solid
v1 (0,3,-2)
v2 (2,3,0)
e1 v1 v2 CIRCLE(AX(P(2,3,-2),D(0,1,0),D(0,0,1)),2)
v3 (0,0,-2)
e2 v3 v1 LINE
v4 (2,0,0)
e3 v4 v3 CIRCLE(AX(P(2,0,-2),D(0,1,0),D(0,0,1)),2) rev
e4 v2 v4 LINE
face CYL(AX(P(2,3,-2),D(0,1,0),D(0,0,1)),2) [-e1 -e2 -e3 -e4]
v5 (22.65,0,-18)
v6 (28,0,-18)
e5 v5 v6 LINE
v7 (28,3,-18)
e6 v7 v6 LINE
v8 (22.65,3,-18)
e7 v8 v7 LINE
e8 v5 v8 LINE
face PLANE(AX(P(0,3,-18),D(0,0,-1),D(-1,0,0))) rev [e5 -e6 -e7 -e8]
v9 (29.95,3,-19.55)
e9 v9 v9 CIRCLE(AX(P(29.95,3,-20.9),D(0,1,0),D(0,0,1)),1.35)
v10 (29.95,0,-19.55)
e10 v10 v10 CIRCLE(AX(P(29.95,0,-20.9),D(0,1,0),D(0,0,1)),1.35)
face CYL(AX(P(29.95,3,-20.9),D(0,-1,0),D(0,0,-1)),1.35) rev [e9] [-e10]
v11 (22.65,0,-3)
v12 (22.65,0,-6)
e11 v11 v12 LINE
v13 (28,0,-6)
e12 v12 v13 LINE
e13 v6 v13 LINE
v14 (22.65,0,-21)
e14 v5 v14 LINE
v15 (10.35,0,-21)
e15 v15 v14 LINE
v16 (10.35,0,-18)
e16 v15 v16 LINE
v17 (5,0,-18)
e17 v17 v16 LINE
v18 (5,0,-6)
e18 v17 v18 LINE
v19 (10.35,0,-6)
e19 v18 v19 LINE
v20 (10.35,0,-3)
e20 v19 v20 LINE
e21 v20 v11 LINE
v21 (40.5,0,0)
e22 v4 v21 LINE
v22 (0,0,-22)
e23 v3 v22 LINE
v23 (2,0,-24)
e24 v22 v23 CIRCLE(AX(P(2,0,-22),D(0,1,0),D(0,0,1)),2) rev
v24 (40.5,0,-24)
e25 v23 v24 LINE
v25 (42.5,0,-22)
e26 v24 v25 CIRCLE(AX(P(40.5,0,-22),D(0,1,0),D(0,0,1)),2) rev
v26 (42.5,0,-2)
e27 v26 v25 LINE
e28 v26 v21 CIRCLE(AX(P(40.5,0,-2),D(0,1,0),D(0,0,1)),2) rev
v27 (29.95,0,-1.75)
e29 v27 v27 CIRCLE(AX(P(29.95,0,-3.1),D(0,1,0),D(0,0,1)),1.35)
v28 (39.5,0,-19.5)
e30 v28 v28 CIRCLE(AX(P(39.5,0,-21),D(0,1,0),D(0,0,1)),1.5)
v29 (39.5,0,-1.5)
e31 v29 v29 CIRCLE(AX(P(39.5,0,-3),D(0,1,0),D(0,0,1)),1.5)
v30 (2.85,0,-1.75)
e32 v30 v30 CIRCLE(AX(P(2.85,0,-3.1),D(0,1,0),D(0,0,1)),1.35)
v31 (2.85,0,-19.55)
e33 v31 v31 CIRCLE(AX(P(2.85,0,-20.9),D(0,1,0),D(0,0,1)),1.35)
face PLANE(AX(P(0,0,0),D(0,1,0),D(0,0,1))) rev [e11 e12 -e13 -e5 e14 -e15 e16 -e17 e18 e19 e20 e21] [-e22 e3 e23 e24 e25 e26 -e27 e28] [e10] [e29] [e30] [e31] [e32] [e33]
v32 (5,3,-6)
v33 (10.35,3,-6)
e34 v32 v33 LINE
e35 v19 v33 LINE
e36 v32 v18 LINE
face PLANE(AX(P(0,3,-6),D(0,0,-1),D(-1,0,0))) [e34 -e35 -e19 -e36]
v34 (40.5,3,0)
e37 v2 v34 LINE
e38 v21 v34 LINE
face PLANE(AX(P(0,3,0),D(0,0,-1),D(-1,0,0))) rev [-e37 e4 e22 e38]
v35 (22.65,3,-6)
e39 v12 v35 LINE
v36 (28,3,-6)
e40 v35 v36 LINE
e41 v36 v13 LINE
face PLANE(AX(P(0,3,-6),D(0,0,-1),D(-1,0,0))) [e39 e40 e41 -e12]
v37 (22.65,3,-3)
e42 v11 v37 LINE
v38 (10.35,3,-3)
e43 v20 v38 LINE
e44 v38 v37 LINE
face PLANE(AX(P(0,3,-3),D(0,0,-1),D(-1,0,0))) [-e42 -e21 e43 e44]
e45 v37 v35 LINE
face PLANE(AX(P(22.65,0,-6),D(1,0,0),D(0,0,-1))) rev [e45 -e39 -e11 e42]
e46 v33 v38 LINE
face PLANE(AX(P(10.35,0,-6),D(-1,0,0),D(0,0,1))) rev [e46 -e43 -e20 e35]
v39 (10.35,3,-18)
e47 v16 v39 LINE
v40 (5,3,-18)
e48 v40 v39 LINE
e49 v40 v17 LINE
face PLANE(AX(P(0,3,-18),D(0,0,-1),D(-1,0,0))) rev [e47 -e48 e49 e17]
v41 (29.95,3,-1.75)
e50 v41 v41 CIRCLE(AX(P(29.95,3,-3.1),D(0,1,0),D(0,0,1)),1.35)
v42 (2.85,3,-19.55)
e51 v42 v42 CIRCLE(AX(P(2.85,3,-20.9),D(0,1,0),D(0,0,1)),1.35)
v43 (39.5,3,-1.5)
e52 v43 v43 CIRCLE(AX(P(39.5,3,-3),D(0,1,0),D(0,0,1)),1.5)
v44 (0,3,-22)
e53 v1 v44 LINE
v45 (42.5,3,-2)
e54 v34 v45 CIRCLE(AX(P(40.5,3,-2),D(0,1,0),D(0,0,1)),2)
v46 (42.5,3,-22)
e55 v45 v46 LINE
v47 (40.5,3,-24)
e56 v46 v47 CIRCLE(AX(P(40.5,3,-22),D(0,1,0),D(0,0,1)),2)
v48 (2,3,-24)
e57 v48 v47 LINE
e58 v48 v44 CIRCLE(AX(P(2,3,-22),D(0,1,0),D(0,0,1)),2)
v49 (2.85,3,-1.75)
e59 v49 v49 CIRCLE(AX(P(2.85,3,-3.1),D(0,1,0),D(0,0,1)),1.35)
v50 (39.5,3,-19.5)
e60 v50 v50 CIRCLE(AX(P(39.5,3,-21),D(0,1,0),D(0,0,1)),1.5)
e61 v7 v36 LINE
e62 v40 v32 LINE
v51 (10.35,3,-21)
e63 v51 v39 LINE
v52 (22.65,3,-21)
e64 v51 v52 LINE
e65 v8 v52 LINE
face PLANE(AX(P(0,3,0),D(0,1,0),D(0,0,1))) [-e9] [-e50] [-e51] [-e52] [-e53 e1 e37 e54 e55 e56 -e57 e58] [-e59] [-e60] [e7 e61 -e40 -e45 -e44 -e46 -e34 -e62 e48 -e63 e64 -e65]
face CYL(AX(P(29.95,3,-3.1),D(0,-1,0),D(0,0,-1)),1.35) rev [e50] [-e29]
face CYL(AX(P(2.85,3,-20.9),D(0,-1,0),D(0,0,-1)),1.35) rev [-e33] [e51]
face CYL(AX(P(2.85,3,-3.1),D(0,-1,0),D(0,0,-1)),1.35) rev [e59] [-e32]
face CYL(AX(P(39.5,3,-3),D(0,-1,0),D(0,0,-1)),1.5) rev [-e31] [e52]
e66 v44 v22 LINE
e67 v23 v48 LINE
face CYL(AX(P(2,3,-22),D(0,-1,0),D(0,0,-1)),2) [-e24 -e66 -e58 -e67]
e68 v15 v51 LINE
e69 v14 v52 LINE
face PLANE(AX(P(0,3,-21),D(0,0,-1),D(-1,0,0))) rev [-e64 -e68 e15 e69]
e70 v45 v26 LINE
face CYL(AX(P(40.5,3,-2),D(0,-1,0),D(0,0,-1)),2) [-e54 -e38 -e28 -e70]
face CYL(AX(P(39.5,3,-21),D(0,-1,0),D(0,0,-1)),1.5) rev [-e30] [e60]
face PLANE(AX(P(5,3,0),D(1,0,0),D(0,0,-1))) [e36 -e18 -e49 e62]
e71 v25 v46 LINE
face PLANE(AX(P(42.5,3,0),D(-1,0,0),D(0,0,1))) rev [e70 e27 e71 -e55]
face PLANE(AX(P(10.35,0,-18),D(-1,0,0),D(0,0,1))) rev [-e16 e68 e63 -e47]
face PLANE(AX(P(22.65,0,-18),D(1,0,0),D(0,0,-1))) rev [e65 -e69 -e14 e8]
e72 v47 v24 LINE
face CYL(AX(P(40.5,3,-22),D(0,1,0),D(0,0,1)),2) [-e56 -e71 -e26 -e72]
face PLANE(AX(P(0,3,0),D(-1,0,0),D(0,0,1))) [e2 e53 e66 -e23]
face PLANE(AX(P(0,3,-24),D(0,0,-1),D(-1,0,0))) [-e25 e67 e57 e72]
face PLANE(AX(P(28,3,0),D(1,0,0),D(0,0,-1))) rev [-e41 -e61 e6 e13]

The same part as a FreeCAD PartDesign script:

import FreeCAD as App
import Part
import Sketcher
from FreeCAD import Vector


def edges_at(feature, points):
    """Names of the edges that pass closest to the given points."""
    edges = feature.Shape.Edges
    near = lambda p: min(range(len(edges)), key=lambda i: edges[i].distToShape(Part.Vertex(*p))[0])
    return sorted({f"Edge{near(p) + 1}" for p in points})

doc = App.newDocument("Part")
body = doc.addObject("PartDesign::Body", "Body")

# Sketch on XZ plane
sketch1 = body.newObject("Sketcher::SketchObject", "Sketch")
sketch1.AttachmentSupport = (doc.getObject("XZ_Plane"), [""])
sketch1.MapMode = "FlatFace"
sketch1.addGeometry([
    Part.LineSegment(Vector(0, -24, 0), Vector(0, 0, 0)),  # 0
    Part.LineSegment(Vector(0, 0, 0), Vector(42.5, 0, 0)),  # 1
    Part.LineSegment(Vector(42.5, 0, 0), Vector(42.5, -24, 0)),  # 2
    Part.LineSegment(Vector(42.5, -24, 0), Vector(0, -24, 0)),  # 3
    Part.Circle(Vector(2.85, -3.1, 0), Vector(0, 0, 1), 1.35),  # 4
    Part.Circle(Vector(29.95, -3.1, 0), Vector(0, 0, 1), 1.35),  # 5
    Part.Circle(Vector(39.5, -3, 0), Vector(0, 0, 1), 1.5),  # 6
    Part.LineSegment(Vector(10.5, -6, 0), Vector(5, -6, 0)),  # 7
    Part.LineSegment(Vector(5, -6, 0), Vector(5, -18, 0)),  # 8
    Part.LineSegment(Vector(5, -18, 0), Vector(10.5, -18, 0)),  # 9
    Part.LineSegment(Vector(10.5, -18, 0), Vector(10.5, -21, 0)),  # 10
    Part.LineSegment(Vector(10.5, -21, 0), Vector(22.5, -21, 0)),  # 11
    Part.LineSegment(Vector(22.5, -21, 0), Vector(22.5, -18, 0)),  # 12
    Part.LineSegment(Vector(22.5, -18, 0), Vector(28, -18, 0)),  # 13
    Part.LineSegment(Vector(28, -18, 0), Vector(28, -6, 0)),  # 14
    Part.LineSegment(Vector(28, -6, 0), Vector(22.5, -6, 0)),  # 15
    Part.LineSegment(Vector(22.5, -6, 0), Vector(22.5, -3, 0)),  # 16
    Part.LineSegment(Vector(22.5, -3, 0), Vector(10.5, -3, 0)),  # 17
    Part.LineSegment(Vector(10.5, -3, 0), Vector(10.5, -6, 0)),  # 18
    Part.Circle(Vector(2.85, -20.9, 0), Vector(0, 0, 1), 1.35),  # 19
    Part.Circle(Vector(29.95, -20.9, 0), Vector(0, 0, 1), 1.35),  # 20
    Part.Circle(Vector(39.5, -21, 0), Vector(0, 0, 1), 1.5),  # 21
], False)
sketch1.addConstraint([
    Sketcher.Constraint("Coincident", 0, 2, 1, 1),
    Sketcher.Constraint("Coincident", 1, 2, 2, 1),
    Sketcher.Constraint("Coincident", 2, 2, 3, 1),
    Sketcher.Constraint("Coincident", 3, 2, 0, 1),
    Sketcher.Constraint("Coincident", 7, 2, 8, 1),
    Sketcher.Constraint("Coincident", 8, 2, 9, 1),
    Sketcher.Constraint("Coincident", 9, 2, 10, 1),
    Sketcher.Constraint("Coincident", 10, 2, 11, 1),
    Sketcher.Constraint("Coincident", 11, 2, 12, 1),
    Sketcher.Constraint("Coincident", 12, 2, 13, 1),
    Sketcher.Constraint("Coincident", 13, 2, 14, 1),
    Sketcher.Constraint("Coincident", 14, 2, 15, 1),
    Sketcher.Constraint("Coincident", 15, 2, 16, 1),
    Sketcher.Constraint("Coincident", 16, 2, 17, 1),
    Sketcher.Constraint("Coincident", 17, 2, 18, 1),
    Sketcher.Constraint("Coincident", 18, 2, 7, 1),
    Sketcher.Constraint("Vertical", 0),
    Sketcher.Constraint("Horizontal", 1),
    Sketcher.Constraint("Vertical", 2),
    Sketcher.Constraint("Horizontal", 3),
    Sketcher.Constraint("Horizontal", 7),
    Sketcher.Constraint("Vertical", 8),
    Sketcher.Constraint("Horizontal", 9),
    Sketcher.Constraint("Vertical", 10),
    Sketcher.Constraint("Horizontal", 11),
    Sketcher.Constraint("Vertical", 12),
    Sketcher.Constraint("Horizontal", 13),
    Sketcher.Constraint("Vertical", 14),
    Sketcher.Constraint("Horizontal", 15),
    Sketcher.Constraint("Vertical", 16),
    Sketcher.Constraint("Horizontal", 17),
    Sketcher.Constraint("Vertical", 18),
    Sketcher.Constraint("Coincident", 0, 2, -1, 1),
    Sketcher.Constraint("Equal", 4, 5),
    Sketcher.Constraint("Equal", 5, 19),
    Sketcher.Constraint("Equal", 19, 20),
    Sketcher.Constraint("Equal", 6, 21),
    Sketcher.Constraint("Horizontal", 4, 3, 5, 3),
    Sketcher.Constraint("Horizontal", 19, 3, 20, 3),
    Sketcher.Constraint("Horizontal", 21, 3, 10, 2),
    Sketcher.Constraint("Horizontal", 9, 2, 12, 2),
    Sketcher.Constraint("Horizontal", 7, 2, 14, 2),
    Sketcher.Constraint("Horizontal", 6, 3, 16, 2),
    Sketcher.Constraint("Vertical", 4, 3, 19, 3),
    Sketcher.Constraint("Vertical", 5, 3, 20, 3),
    Sketcher.Constraint("Vertical", 6, 3, 21, 3),
    Sketcher.Constraint("Vertical", 12, 2, 15, 2),
    Sketcher.Constraint("Vertical", 10, 2, 17, 2),
    Sketcher.Constraint("Equal", 9, 13),
    Sketcher.Constraint("Equal", 17, 8),
    Sketcher.Constraint("Equal", 12, 16),
    Sketcher.Constraint("Diameter", 6, 3.0),
    Sketcher.Constraint("Diameter", 4, 2.7),
    Sketcher.Constraint("DistanceX", 11, 1, 11, 2, 12.0),
    Sketcher.Constraint("DistanceY", 0, 1, 0, 2, 24.0),
    Sketcher.Constraint("DistanceY", 10, 2, 10, 1, 3.0),
    Sketcher.Constraint("DistanceX", 1, 1, 1, 2, 42.5),
    Sketcher.Constraint("DistanceX", 7, 2, 7, 1, 5.5),
    Sketcher.Constraint("DistanceY", 6, 3, -1, 1, 3.0),
    Sketcher.Constraint("DistanceX", -1, 1, 7, 2, 5.0),
    Sketcher.Constraint("DistanceX", 6, 3, 1, 2, 3.0),
    Sketcher.Constraint("DistanceY", 4, 3, -1, 1, 3.1),
    Sketcher.Constraint("DistanceY", 19, 3, -1, 1, 20.9),
    Sketcher.Constraint("DistanceX", 4, 3, 5, 3, 27.1),
    Sketcher.Constraint("DistanceX", -1, 1, 4, 3, 2.85),
])
pad1 = body.newObject("PartDesign::Pad", "Pad")
pad1.Profile = sketch1
pad1.Length = 3
pad1.Reversed = True

# Sketch on XZ plane
sketch2 = body.newObject("Sketcher::SketchObject", "Sketch001")
sketch2.AttachmentSupport = (doc.getObject("XZ_Plane"), [""])
sketch2.MapMode = "FlatFace"
sketch2.AttachmentOffset = App.Placement(Vector(0, 0, -3), App.Rotation())
sketch2.addGeometry([
    Part.LineSegment(Vector(22.5, -6, 0), Vector(22.5, -3, 0)),  # 0
    Part.LineSegment(Vector(22.5, -3, 0), Vector(22.65, -3, 0)),  # 1
    Part.LineSegment(Vector(22.65, -3, 0), Vector(22.65, -6, 0)),  # 2
    Part.LineSegment(Vector(22.65, -6, 0), Vector(22.5, -6, 0)),  # 3
    Part.LineSegment(Vector(10.35, -6, 0), Vector(10.35, -3, 0)),  # 4
    Part.LineSegment(Vector(10.35, -3, 0), Vector(10.5, -3, 0)),  # 5
    Part.LineSegment(Vector(10.5, -3, 0), Vector(10.5, -6, 0)),  # 6
    Part.LineSegment(Vector(10.5, -6, 0), Vector(10.35, -6, 0)),  # 7
    Part.LineSegment(Vector(22.5, -21, 0), Vector(22.5, -18, 0)),  # 8
    Part.LineSegment(Vector(22.5, -18, 0), Vector(22.65, -18, 0)),  # 9
    Part.LineSegment(Vector(22.65, -18, 0), Vector(22.65, -21, 0)),  # 10
    Part.LineSegment(Vector(22.65, -21, 0), Vector(22.5, -21, 0)),  # 11
    Part.LineSegment(Vector(10.35, -21, 0), Vector(10.35, -18, 0)),  # 12
    Part.LineSegment(Vector(10.35, -18, 0), Vector(10.5, -18, 0)),  # 13
    Part.LineSegment(Vector(10.5, -18, 0), Vector(10.5, -21, 0)),  # 14
    Part.LineSegment(Vector(10.5, -21, 0), Vector(10.35, -21, 0)),  # 15
], False)
sketch2.addConstraint([
    Sketcher.Constraint("Coincident", 0, 2, 1, 1),
    Sketcher.Constraint("Coincident", 1, 2, 2, 1),
    Sketcher.Constraint("Coincident", 2, 2, 3, 1),
    Sketcher.Constraint("Coincident", 3, 2, 0, 1),
    Sketcher.Constraint("Coincident", 4, 2, 5, 1),
    Sketcher.Constraint("Coincident", 5, 2, 6, 1),
    Sketcher.Constraint("Coincident", 6, 2, 7, 1),
    Sketcher.Constraint("Coincident", 7, 2, 4, 1),
    Sketcher.Constraint("Coincident", 8, 2, 9, 1),
    Sketcher.Constraint("Coincident", 9, 2, 10, 1),
    Sketcher.Constraint("Coincident", 10, 2, 11, 1),
    Sketcher.Constraint("Coincident", 11, 2, 8, 1),
    Sketcher.Constraint("Coincident", 12, 2, 13, 1),
    Sketcher.Constraint("Coincident", 13, 2, 14, 1),
    Sketcher.Constraint("Coincident", 14, 2, 15, 1),
    Sketcher.Constraint("Coincident", 15, 2, 12, 1),
    Sketcher.Constraint("Vertical", 0),
    Sketcher.Constraint("Horizontal", 1),
    Sketcher.Constraint("Vertical", 2),
    Sketcher.Constraint("Horizontal", 3),
    Sketcher.Constraint("Vertical", 4),
    Sketcher.Constraint("Horizontal", 5),
    Sketcher.Constraint("Vertical", 6),
    Sketcher.Constraint("Horizontal", 7),
    Sketcher.Constraint("Vertical", 8),
    Sketcher.Constraint("Horizontal", 9),
    Sketcher.Constraint("Vertical", 10),
    Sketcher.Constraint("Horizontal", 11),
    Sketcher.Constraint("Vertical", 12),
    Sketcher.Constraint("Horizontal", 13),
    Sketcher.Constraint("Vertical", 14),
    Sketcher.Constraint("Horizontal", 15),
    Sketcher.Constraint("Horizontal", 1, 2, 4, 2),
    Sketcher.Constraint("Horizontal", 3, 2, 6, 2),
    Sketcher.Constraint("Horizontal", 9, 2, 12, 2),
    Sketcher.Constraint("Horizontal", 11, 2, 14, 2),
    Sketcher.Constraint("Vertical", 3, 2, 8, 2),
    Sketcher.Constraint("Vertical", 2, 2, 9, 2),
    Sketcher.Constraint("Vertical", 7, 2, 12, 2),
    Sketcher.Constraint("Vertical", 6, 2, 13, 2),
    Sketcher.Constraint("Equal", 3, 5),
    Sketcher.Constraint("Equal", 6, 8),
    Sketcher.Constraint("DistanceY", 0, 1, 0, 2, 3.0),
    Sketcher.Constraint("DistanceY", 0, 2, -1, 1, 3.0),
    Sketcher.Constraint("DistanceY", 8, 2, -1, 1, 18.0),
    Sketcher.Constraint("DistanceX", 5, 2, 0, 2, 12.0),
    Sketcher.Constraint("DistanceX", 1, 1, 1, 2, 0.15),
    Sketcher.Constraint("DistanceX", -1, 1, 0, 2, 22.5),
])
pocket1 = body.newObject("PartDesign::Pocket", "Pocket")
pocket1.Profile = sketch2
pocket1.Type = "ThroughAll"
pocket1.Reversed = True
doc.recompute()

fillet = body.newObject("PartDesign::Fillet", "Fillet")
fillet.Base = (pocket1, edges_at(pocket1, [
    (0, 1.5, 0),
    (0, 1.5, -24),
    (42.5, 1.5, -24),
    (42.5, 1.5, 0),
]))
fillet.Radius = 2

doc.recompute()
